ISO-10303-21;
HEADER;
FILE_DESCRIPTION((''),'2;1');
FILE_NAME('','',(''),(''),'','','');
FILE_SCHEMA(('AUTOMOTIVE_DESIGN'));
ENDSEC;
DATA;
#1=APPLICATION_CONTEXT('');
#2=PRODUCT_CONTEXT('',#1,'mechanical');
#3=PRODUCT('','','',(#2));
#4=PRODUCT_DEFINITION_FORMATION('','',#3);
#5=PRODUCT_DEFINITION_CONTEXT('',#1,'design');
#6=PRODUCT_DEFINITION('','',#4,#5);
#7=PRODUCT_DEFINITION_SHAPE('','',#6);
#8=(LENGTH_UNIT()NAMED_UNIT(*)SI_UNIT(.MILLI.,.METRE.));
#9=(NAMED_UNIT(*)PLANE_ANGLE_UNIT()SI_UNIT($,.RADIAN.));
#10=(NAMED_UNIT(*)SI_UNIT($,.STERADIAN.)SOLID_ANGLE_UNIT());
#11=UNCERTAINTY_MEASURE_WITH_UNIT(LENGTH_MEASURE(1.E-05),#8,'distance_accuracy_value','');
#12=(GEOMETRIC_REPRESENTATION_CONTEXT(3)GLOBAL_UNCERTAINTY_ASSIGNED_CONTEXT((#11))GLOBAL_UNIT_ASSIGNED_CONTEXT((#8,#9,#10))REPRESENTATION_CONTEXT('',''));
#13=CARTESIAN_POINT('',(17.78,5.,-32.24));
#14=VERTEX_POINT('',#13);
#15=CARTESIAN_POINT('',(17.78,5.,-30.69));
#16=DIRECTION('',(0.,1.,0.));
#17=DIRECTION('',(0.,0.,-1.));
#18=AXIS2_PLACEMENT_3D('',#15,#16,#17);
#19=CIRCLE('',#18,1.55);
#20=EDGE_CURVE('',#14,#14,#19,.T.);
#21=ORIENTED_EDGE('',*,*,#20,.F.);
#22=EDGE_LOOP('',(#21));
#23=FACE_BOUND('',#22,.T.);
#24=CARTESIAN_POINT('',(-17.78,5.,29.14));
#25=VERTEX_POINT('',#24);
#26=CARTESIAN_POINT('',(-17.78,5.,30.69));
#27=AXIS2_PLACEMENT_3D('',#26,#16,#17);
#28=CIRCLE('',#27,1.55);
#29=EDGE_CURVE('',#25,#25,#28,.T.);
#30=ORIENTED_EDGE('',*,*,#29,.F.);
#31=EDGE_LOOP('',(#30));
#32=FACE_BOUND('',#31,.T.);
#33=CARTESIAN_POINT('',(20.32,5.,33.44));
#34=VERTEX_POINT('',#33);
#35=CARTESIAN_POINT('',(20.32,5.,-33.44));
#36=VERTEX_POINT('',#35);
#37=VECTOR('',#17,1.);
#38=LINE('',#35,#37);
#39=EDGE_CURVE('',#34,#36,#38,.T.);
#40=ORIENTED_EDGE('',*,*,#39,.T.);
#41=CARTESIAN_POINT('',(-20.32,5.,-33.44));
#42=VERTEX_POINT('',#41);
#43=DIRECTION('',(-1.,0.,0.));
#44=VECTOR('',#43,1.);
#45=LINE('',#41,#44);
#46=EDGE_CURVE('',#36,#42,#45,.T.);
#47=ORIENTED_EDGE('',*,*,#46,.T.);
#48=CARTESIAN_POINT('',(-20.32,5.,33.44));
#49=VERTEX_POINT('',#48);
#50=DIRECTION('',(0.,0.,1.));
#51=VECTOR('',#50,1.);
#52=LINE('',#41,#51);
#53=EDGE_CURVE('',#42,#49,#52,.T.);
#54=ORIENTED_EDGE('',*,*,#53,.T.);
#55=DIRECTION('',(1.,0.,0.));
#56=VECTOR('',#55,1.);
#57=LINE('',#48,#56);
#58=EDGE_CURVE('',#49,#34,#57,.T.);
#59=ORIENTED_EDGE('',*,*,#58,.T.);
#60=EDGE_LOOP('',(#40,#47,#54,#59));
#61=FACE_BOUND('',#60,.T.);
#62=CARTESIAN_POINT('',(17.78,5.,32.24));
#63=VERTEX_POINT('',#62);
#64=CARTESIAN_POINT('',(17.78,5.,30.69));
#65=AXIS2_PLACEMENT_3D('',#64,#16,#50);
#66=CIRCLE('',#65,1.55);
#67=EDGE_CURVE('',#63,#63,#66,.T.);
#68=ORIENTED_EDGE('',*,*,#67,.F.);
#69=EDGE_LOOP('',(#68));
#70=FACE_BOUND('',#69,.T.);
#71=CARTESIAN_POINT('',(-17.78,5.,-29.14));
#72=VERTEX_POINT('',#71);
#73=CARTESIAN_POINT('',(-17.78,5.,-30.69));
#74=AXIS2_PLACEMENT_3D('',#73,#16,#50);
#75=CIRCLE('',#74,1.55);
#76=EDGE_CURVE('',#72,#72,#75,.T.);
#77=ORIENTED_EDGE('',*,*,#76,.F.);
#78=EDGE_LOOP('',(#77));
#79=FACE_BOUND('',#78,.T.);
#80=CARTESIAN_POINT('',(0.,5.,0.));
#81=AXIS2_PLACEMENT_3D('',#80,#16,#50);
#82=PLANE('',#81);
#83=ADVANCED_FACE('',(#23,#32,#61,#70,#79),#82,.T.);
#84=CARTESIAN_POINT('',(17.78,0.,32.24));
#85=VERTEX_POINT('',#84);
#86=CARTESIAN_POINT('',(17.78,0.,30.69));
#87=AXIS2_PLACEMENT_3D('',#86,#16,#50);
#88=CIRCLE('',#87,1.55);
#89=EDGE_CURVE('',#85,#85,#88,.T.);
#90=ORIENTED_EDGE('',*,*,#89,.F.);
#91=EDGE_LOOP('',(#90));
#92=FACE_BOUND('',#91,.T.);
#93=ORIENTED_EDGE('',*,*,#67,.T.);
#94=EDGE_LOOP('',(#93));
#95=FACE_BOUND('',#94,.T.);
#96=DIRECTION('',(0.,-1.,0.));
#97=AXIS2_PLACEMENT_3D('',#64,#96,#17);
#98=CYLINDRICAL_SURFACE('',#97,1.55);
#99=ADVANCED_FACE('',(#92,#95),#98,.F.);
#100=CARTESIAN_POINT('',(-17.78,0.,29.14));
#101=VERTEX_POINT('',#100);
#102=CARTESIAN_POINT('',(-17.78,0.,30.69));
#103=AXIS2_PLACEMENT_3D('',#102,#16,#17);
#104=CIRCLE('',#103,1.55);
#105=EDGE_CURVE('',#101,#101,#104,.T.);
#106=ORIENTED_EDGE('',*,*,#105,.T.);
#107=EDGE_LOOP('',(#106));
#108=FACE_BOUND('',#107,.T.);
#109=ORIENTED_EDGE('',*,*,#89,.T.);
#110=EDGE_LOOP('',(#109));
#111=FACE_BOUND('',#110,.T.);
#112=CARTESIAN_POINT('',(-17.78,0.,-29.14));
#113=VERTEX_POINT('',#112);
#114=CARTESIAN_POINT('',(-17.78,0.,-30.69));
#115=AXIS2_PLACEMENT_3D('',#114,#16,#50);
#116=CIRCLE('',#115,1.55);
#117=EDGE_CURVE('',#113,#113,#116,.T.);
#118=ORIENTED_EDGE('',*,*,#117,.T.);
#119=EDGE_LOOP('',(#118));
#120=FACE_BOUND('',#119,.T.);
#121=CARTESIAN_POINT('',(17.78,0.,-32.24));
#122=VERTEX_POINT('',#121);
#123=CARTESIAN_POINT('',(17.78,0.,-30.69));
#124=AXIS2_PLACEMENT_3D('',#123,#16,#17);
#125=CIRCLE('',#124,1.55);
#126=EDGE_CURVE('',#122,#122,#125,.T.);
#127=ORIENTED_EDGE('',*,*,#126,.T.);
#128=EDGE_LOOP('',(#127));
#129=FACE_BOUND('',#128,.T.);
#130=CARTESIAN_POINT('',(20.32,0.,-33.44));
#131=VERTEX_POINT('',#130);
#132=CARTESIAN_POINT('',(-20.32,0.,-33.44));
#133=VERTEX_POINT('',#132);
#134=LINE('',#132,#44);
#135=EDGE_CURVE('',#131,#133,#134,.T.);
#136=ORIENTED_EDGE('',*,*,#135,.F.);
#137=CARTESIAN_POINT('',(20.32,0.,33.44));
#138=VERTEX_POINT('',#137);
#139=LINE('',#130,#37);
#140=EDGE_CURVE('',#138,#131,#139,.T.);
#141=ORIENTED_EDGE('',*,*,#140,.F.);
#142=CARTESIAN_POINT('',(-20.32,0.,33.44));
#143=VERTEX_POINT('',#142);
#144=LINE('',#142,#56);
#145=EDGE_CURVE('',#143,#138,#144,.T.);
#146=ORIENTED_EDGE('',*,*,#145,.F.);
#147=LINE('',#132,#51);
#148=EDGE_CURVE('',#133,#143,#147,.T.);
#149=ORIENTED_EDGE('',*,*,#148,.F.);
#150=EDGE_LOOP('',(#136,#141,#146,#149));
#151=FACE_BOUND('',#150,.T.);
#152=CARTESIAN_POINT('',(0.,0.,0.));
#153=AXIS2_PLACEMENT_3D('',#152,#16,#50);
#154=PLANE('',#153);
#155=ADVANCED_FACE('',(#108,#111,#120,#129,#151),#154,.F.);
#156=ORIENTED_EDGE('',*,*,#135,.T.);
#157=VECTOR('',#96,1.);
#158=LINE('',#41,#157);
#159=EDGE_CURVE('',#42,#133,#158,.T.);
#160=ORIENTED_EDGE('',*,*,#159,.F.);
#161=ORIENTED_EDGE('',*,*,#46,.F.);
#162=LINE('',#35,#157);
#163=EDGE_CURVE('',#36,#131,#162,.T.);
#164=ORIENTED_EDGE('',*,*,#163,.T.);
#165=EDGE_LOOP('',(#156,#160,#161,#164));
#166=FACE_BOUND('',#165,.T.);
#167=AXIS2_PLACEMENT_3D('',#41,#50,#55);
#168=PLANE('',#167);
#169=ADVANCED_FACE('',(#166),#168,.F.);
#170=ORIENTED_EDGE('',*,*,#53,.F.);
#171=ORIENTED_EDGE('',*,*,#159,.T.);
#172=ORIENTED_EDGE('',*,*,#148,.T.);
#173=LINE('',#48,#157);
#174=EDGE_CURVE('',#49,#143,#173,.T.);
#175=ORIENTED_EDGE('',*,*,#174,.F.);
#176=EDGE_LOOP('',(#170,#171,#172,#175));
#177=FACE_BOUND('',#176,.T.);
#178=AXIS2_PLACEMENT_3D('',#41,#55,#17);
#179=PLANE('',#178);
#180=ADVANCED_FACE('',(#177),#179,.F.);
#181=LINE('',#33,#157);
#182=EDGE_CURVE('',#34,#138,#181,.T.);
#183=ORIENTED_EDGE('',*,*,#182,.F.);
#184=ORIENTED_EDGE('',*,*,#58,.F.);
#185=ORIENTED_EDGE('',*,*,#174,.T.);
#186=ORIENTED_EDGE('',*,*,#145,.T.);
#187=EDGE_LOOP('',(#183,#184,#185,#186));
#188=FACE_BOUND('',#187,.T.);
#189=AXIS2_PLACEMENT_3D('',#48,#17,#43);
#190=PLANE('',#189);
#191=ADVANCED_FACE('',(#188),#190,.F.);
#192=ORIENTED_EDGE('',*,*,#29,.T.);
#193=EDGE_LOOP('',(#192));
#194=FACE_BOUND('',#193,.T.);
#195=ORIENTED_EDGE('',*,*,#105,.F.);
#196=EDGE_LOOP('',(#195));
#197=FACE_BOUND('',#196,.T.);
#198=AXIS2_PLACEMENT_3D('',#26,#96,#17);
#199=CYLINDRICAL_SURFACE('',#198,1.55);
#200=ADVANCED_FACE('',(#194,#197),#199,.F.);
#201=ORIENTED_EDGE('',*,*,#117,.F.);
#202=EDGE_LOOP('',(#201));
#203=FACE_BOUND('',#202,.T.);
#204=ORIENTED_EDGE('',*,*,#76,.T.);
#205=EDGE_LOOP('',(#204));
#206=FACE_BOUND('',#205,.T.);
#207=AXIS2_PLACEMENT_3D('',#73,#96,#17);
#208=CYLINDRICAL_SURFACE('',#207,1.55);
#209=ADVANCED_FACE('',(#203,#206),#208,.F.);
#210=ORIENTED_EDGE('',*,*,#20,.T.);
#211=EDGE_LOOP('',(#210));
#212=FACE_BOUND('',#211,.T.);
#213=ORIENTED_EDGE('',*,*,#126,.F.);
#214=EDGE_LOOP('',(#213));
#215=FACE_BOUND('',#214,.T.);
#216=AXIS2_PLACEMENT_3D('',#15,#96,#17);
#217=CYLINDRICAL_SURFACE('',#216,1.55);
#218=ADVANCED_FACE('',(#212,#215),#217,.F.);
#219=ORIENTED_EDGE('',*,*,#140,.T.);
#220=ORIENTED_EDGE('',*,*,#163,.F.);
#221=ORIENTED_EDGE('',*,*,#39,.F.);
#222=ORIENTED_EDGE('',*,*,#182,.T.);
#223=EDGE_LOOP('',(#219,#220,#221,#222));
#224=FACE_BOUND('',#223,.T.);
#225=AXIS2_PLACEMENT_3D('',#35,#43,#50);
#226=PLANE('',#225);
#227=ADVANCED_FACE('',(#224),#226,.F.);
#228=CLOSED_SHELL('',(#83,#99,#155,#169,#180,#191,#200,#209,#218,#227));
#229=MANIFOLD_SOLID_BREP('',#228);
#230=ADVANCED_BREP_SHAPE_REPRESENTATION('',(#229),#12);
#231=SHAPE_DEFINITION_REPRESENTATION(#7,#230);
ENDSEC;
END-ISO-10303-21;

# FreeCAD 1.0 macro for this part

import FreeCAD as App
import Part
import Sketcher
from FreeCAD import Vector

doc = App.newDocument("Part")
params = doc.addObject("Spreadsheet::Sheet", "Params")
for row, (alias, value) in enumerate([
    ("sketch1_diameter", "3.1 mm"),
    ("sketch1_width", "40.64 mm"),
    ("sketch1_height", "66.88 mm"),
    ("pad1_length", "5 mm"),
], start=1):
    params.set(f"A{row}", alias)
    params.set(f"B{row}", "=" + value)
    params.setAlias(f"B{row}", alias)

body = doc.addObject("PartDesign::Body", "Body")

# Sketch on XZ plane
sketch1 = body.newObject("Sketcher::SketchObject", "Sketch")
sketch1.AttachmentSupport = (doc.getObject("XZ_Plane"), [""])
sketch1.MapMode = "FlatFace"
sketch1.addGeometry([
    Part.LineSegment(Vector(-20.3, -33.4, 0), Vector(-20.3, 33.4, 0)),  # 0
    Part.LineSegment(Vector(-20.3, 33.4, 0), Vector(20.3, 33.4, 0)),  # 1
    Part.LineSegment(Vector(20.3, 33.4, 0), Vector(20.3, -33.4, 0)),  # 2
    Part.LineSegment(Vector(20.3, -33.4, 0), Vector(-20.3, -33.4, 0)),  # 3
    Part.Circle(Vector(-17.8, 30.7, 0), Vector(0, 0, 1), 1.6),  # 4
    Part.Circle(Vector(17.8, 30.7, 0), Vector(0, 0, 1), 1.6),  # 5
    Part.Circle(Vector(-17.8, -30.7, 0), Vector(0, 0, 1), 1.6),  # 6
    Part.Circle(Vector(17.8, -30.7, 0), Vector(0, 0, 1), 1.6),  # 7
], False)
sketch1.addConstraint([
    Sketcher.Constraint("Coincident", 0, 2, 1, 1),
    Sketcher.Constraint("Coincident", 1, 2, 2, 1),
    Sketcher.Constraint("Coincident", 2, 2, 3, 1),
    Sketcher.Constraint("Coincident", 3, 2, 0, 1),
    Sketcher.Constraint("Vertical", 0),
    Sketcher.Constraint("Horizontal", 1),
    Sketcher.Constraint("Vertical", 2),
    Sketcher.Constraint("Horizontal", 3),
    Sketcher.Constraint("Equal", 4, 5),
    Sketcher.Constraint("Equal", 5, 6),
    Sketcher.Constraint("Equal", 6, 7),
    Sketcher.Constraint("Symmetric", 5, 3, 6, 3, -1, 1),
    Sketcher.Constraint("Symmetric", 4, 3, 7, 3, -1, 1),
    Sketcher.Constraint("Symmetric", 0, 2, 2, 2, -1, 1),
    Sketcher.Constraint("Symmetric", 4, 3, 5, 3, -2),
    Sketcher.Constraint("Diameter", 4, 3.1),
    Sketcher.Constraint("DistanceX", 1, 1, 1, 2, 40.64),
    Sketcher.Constraint("DistanceY", 0, 1, 0, 2, 66.88),
    Sketcher.Constraint("DistanceX", 0, 2, 5, 3, 38.1),
    Sketcher.Constraint("DistanceY", -1, 1, 4, 3, 30.69),
])
sketch1.setExpression("Constraints[15]", "Params.sketch1_diameter")
sketch1.setExpression("Constraints[16]", "Params.sketch1_width")
sketch1.setExpression("Constraints[17]", "Params.sketch1_height")
pad1 = body.newObject("PartDesign::Pad", "Pad")
pad1.Profile = sketch1
pad1.setExpression("Length", "Params.pad1_length")
pad1.Reversed = True

doc.recompute()
